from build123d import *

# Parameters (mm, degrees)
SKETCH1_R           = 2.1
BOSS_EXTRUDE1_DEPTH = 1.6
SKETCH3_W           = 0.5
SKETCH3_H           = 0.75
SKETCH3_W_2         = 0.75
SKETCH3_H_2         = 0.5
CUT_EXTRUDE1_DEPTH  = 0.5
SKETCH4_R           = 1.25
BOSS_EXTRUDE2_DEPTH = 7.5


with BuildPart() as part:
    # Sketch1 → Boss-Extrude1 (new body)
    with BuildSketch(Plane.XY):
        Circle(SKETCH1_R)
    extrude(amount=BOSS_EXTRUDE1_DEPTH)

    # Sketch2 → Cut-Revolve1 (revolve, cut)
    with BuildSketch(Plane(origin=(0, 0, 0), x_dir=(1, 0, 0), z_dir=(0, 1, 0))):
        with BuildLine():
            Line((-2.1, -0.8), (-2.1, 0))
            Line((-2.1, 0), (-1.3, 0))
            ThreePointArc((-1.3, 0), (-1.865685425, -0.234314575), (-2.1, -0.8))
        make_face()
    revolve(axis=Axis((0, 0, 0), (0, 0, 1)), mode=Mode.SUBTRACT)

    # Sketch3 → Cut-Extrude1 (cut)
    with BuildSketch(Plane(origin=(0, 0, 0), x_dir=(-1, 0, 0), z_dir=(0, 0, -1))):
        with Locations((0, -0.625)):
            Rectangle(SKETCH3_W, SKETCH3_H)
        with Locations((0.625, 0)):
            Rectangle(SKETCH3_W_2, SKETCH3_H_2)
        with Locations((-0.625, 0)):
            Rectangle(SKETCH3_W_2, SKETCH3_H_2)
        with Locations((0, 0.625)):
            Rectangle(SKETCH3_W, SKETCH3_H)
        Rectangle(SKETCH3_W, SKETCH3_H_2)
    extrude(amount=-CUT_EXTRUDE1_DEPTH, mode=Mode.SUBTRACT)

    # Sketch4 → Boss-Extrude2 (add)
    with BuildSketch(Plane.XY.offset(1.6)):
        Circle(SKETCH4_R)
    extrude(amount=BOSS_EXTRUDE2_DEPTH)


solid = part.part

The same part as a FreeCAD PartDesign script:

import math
import FreeCAD as App
import Part
import Sketcher

V = App.Vector
Q = App.Units.Quantity

doc = App.newDocument("Part")
body = doc.addObject("PartDesign::Body", "Body")

sketch1 = body.newObject("Sketcher::SketchObject", "Sketch")
sketch1.AttachmentSupport = (doc.getObject("XY_Plane"), [""])
sketch1.MapMode = "FlatFace"
sketch1.addGeometry(Part.Circle(V(0, 0, 0), V(0, 0, 1), 2.1), False)
sketch1.addConstraint([
    Sketcher.Constraint("Coincident", 0, 3, -1, 1),
    Sketcher.Constraint("Diameter", 0, Q("4.2 mm")),
])
pad1 = body.newObject("PartDesign::Pad", "Pad")
pad1.Profile = sketch1
pad1.Length = 1.6

sketch2 = body.newObject("Sketcher::SketchObject", "Sketch001")
sketch2.AttachmentSupport = (doc.getObject("XZ_Plane"), [""])
sketch2.MapMode = "FlatFace"
sketch2.addGeometry([
    Part.LineSegment(V(-2.1, 0, 0), V(-2.1, 0.8, 0)),
    Part.ArcOfCircle(Part.Circle(V(-1.3, 0.8, 0), V(0, 0, 1), 0.8), math.radians(180), math.radians(270)),
    Part.LineSegment(V(-1.3, 0, 0), V(-2.1, 0, 0)),
], False)
sketch2.addConstraint([
    Sketcher.Constraint("Tangent", 0, 2, 1, 1),
    Sketcher.Constraint("Tangent", 1, 2, 2, 1),
    Sketcher.Constraint("Coincident", 2, 2, 0, 1),
    Sketcher.Constraint("Vertical", 0),
    Sketcher.Constraint("Horizontal", 2),
    Sketcher.Constraint("PointOnObject", 1, 2, -1),
    Sketcher.Constraint("Radius", 1, Q("0.8 mm")),
    Sketcher.Constraint("DistanceX", 1, 3, -1, 1, Q("1.3 mm")),
])
groove = body.newObject("PartDesign::Groove", "Groove")
groove.Profile = sketch2
groove.ReferenceAxis = (sketch2, ["V_Axis"])
groove.Angle = 360

sketch3 = body.newObject("Sketcher::SketchObject", "Sketch002")
sketch3.AttachmentSupport = (doc.getObject("XY_Plane"), [""])
sketch3.MapMode = "FlatFace"
sketch3.addGeometry([
    Part.LineSegment(V(0.2, -0.2, 0), V(0.2, -1, 0)),
    Part.LineSegment(V(0.2, -1, 0), V(-0.2, -1, 0)),
    Part.LineSegment(V(-0.2, -1, 0), V(-0.2, -0.2, 0)),
    Part.LineSegment(V(-0.2, -0.2, 0), V(-1, -0.2, 0)),
    Part.LineSegment(V(-1, -0.2, 0), V(-1, 0.2, 0)),
    Part.LineSegment(V(-1, 0.2, 0), V(-0.2, 0.2, 0)),
    Part.LineSegment(V(-0.2, 0.2, 0), V(-0.2, 1, 0)),
    Part.LineSegment(V(-0.2, 1, 0), V(0.2, 1, 0)),
    Part.LineSegment(V(0.2, 1, 0), V(0.2, 0.2, 0)),
    Part.LineSegment(V(0.2, 0.2, 0), V(1, 0.2, 0)),
    Part.LineSegment(V(1, 0.2, 0), V(1, -0.2, 0)),
    Part.LineSegment(V(1, -0.2, 0), V(0.2, -0.2, 0)),
], False)
sketch3.addConstraint([
    Sketcher.Constraint("Coincident", 0, 2, 1, 1),
    Sketcher.Constraint("Coincident", 1, 2, 2, 1),
    Sketcher.Constraint("Coincident", 2, 2, 3, 1),
    Sketcher.Constraint("Coincident", 3, 2, 4, 1),
    Sketcher.Constraint("Coincident", 4, 2, 5, 1),
    Sketcher.Constraint("Coincident", 5, 2, 6, 1),
    Sketcher.Constraint("Coincident", 6, 2, 7, 1),
    Sketcher.Constraint("Coincident", 7, 2, 8, 1),
    Sketcher.Constraint("Coincident", 8, 2, 9, 1),
    Sketcher.Constraint("Coincident", 9, 2, 10, 1),
    Sketcher.Constraint("Coincident", 10, 2, 11, 1),
    Sketcher.Constraint("Coincident", 11, 2, 0, 1),
    Sketcher.Constraint("Vertical", 0),
    Sketcher.Constraint("Horizontal", 1),
    Sketcher.Constraint("Vertical", 2),
    Sketcher.Constraint("Horizontal", 3),
    Sketcher.Constraint("Vertical", 4),
    Sketcher.Constraint("Horizontal", 5),
    Sketcher.Constraint("Vertical", 6),
    Sketcher.Constraint("Horizontal", 7),
    Sketcher.Constraint("Vertical", 8),
    Sketcher.Constraint("Horizontal", 9),
    Sketcher.Constraint("Vertical", 10),
    Sketcher.Constraint("Horizontal", 11),
    Sketcher.Constraint("Symmetric", 0, 2, 6, 2, -1, 1),
    Sketcher.Constraint("Symmetric", 2, 2, 8, 2, -1, 1),
    Sketcher.Constraint("Symmetric", 4, 2, 10, 2, -1, 1),
    Sketcher.Constraint("Symmetric", 5, 2, 8, 2, -2),
    Sketcher.Constraint("Equal", 11, 0),
    Sketcher.Constraint("Equal", 7, 4),
    Sketcher.Constraint("DistanceX", 1, 2, 1, 1, Q("0.5 mm")),
    Sketcher.Constraint("DistanceY", 0, 2, -1, 1, Q("1 mm")),
])
pocket1 = body.newObject("PartDesign::Pocket", "Pocket")
pocket1.Profile = sketch3
pocket1.Length = 0.5
pocket1.Reversed = True

sketch4 = body.newObject("Sketcher::SketchObject", "Sketch003")
sketch4.AttachmentSupport = (doc.getObject("XY_Plane"), [""])
sketch4.MapMode = "FlatFace"
sketch4.AttachmentOffset = App.Placement(V(0, 0, 1.6), App.Rotation())
sketch4.addGeometry(Part.Circle(V(0, 0, 0), V(0, 0, 1), 1.2), False)
sketch4.addConstraint([
    Sketcher.Constraint("Coincident", 0, 3, -1, 1),
    Sketcher.Constraint("Diameter", 0, Q("2.5 mm")),
])
pad2 = body.newObject("PartDesign::Pad", "Pad001")
pad2.Profile = sketch4
pad2.Length = 7.5

doc.recompute()
